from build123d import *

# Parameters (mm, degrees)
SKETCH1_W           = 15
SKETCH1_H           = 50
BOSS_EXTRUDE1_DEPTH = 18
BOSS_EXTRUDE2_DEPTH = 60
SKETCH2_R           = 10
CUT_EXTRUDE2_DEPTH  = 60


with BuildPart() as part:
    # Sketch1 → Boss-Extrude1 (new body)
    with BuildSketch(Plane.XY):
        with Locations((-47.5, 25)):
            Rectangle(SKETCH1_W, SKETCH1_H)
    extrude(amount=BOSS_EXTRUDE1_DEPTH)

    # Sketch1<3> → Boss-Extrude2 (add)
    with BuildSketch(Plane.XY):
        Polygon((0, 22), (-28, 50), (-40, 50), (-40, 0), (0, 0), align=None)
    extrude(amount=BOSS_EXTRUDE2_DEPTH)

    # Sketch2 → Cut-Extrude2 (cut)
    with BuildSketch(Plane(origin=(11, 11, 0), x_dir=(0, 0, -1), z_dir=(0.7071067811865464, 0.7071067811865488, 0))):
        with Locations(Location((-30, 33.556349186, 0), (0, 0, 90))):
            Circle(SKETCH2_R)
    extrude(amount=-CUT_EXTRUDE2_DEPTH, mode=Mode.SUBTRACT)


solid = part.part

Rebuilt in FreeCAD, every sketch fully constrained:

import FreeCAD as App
import Part
import Sketcher
from FreeCAD import Vector


def add_polygon(sketch, points):
    """Adds a closed chain of lines whose ends are joined by coincident constraints."""
    first, n = sketch.GeometryCount, len(points)
    for a, b in zip(points, points[1:] + points[:1]):
        sketch.addGeometry(Part.LineSegment(App.Vector(*a, 0), App.Vector(*b, 0)), False)
    for i in range(n):
        sketch.addConstraint(Sketcher.Constraint("Coincident", first + i, 2, first + (i + 1) % n, 1))

doc = App.newDocument("Part")
body = doc.addObject("PartDesign::Body", "Body")

sketch1 = doc.addObject("Sketcher::SketchObject", "Sketch")
body.addObject(sketch1)
sketch1.AttachmentSupport = (doc.XY_Plane, [""])
sketch1.MapMode = "FlatFace"
add_polygon(sketch1, [(-55, 50), (-55, 0), (-40, 0), (-40, 50)])
sketch1.addConstraint(Sketcher.Constraint("Vertical", 0))
sketch1.addConstraint(Sketcher.Constraint("Horizontal", 1))
sketch1.addConstraint(Sketcher.Constraint("Vertical", 2))
sketch1.addConstraint(Sketcher.Constraint("Horizontal", 3))
sketch1.addConstraint(Sketcher.Constraint("PointOnObject", 0, 2, -1))
sketch1.addConstraint(Sketcher.Constraint("DistanceX", 1, 1, 1, 2, 15.0))
sketch1.addConstraint(Sketcher.Constraint("DistanceY", 0, 2, 0, 1, 50.0))
sketch1.addConstraint(Sketcher.Constraint("DistanceX", 0, 2, -1, 1, 55.0))
pad1 = doc.addObject("PartDesign::Pad", "Pad")
body.addObject(pad1)
pad1.Profile = sketch1
pad1.Length = 18

sketch2 = doc.addObject("Sketcher::SketchObject", "Sketch001")
body.addObject(sketch2)
sketch2.AttachmentSupport = (doc.XY_Plane, [""])
sketch2.MapMode = "FlatFace"
add_polygon(sketch2, [(0, 22), (-28, 50), (-40, 50), (-40, 0), (0, 0)])
sketch2.addConstraint(Sketcher.Constraint("Horizontal", 1))
sketch2.addConstraint(Sketcher.Constraint("Vertical", 2))
sketch2.addConstraint(Sketcher.Constraint("Horizontal", 3))
sketch2.addConstraint(Sketcher.Constraint("Vertical", 4))
sketch2.addConstraint(Sketcher.Constraint("Coincident", 3, 2, -1, 1))
sketch2.addConstraint(Sketcher.Constraint("DistanceX", 1, 2, 1, 1, 12.0))
sketch2.addConstraint(Sketcher.Constraint("DistanceX", 3, 1, 3, 2, 40.0))
sketch2.addConstraint(Sketcher.Constraint("DistanceY", 2, 2, 2, 1, 50.0))
sketch2.addConstraint(Sketcher.Constraint("DistanceY", 4, 1, 4, 2, 22.0))
pad2 = doc.addObject("PartDesign::Pad", "Pad001")
body.addObject(pad2)
pad2.Profile = sketch2
pad2.Length = 60

sketch3 = doc.addObject("Sketcher::SketchObject", "Sketch002")
body.addObject(sketch3)
sketch3.Placement = App.Placement(Vector(11, 11, 0), App.Rotation(Vector(0, 0, -1), Vector(-0.707106781, 0.707106781, 0), Vector(0.707106781, 0.707106781, 0), "ZXY"))
sketch3.addGeometry(Part.Circle(Vector(-30, 34, 0), Vector(0, 0, 1), 10), False)
sketch3.addConstraint(Sketcher.Constraint("Diameter", 0, 20.0))
sketch3.addConstraint(Sketcher.Constraint("DistanceX", 0, 3, -1, 1, 30.0))
sketch3.addConstraint(Sketcher.Constraint("DistanceY", -1, 1, 0, 3, 33.556349))
pocket1 = doc.addObject("PartDesign::Pocket", "Pocket")
body.addObject(pocket1)
pocket1.Profile = sketch3
pocket1.Length = 60

doc.recompute()
